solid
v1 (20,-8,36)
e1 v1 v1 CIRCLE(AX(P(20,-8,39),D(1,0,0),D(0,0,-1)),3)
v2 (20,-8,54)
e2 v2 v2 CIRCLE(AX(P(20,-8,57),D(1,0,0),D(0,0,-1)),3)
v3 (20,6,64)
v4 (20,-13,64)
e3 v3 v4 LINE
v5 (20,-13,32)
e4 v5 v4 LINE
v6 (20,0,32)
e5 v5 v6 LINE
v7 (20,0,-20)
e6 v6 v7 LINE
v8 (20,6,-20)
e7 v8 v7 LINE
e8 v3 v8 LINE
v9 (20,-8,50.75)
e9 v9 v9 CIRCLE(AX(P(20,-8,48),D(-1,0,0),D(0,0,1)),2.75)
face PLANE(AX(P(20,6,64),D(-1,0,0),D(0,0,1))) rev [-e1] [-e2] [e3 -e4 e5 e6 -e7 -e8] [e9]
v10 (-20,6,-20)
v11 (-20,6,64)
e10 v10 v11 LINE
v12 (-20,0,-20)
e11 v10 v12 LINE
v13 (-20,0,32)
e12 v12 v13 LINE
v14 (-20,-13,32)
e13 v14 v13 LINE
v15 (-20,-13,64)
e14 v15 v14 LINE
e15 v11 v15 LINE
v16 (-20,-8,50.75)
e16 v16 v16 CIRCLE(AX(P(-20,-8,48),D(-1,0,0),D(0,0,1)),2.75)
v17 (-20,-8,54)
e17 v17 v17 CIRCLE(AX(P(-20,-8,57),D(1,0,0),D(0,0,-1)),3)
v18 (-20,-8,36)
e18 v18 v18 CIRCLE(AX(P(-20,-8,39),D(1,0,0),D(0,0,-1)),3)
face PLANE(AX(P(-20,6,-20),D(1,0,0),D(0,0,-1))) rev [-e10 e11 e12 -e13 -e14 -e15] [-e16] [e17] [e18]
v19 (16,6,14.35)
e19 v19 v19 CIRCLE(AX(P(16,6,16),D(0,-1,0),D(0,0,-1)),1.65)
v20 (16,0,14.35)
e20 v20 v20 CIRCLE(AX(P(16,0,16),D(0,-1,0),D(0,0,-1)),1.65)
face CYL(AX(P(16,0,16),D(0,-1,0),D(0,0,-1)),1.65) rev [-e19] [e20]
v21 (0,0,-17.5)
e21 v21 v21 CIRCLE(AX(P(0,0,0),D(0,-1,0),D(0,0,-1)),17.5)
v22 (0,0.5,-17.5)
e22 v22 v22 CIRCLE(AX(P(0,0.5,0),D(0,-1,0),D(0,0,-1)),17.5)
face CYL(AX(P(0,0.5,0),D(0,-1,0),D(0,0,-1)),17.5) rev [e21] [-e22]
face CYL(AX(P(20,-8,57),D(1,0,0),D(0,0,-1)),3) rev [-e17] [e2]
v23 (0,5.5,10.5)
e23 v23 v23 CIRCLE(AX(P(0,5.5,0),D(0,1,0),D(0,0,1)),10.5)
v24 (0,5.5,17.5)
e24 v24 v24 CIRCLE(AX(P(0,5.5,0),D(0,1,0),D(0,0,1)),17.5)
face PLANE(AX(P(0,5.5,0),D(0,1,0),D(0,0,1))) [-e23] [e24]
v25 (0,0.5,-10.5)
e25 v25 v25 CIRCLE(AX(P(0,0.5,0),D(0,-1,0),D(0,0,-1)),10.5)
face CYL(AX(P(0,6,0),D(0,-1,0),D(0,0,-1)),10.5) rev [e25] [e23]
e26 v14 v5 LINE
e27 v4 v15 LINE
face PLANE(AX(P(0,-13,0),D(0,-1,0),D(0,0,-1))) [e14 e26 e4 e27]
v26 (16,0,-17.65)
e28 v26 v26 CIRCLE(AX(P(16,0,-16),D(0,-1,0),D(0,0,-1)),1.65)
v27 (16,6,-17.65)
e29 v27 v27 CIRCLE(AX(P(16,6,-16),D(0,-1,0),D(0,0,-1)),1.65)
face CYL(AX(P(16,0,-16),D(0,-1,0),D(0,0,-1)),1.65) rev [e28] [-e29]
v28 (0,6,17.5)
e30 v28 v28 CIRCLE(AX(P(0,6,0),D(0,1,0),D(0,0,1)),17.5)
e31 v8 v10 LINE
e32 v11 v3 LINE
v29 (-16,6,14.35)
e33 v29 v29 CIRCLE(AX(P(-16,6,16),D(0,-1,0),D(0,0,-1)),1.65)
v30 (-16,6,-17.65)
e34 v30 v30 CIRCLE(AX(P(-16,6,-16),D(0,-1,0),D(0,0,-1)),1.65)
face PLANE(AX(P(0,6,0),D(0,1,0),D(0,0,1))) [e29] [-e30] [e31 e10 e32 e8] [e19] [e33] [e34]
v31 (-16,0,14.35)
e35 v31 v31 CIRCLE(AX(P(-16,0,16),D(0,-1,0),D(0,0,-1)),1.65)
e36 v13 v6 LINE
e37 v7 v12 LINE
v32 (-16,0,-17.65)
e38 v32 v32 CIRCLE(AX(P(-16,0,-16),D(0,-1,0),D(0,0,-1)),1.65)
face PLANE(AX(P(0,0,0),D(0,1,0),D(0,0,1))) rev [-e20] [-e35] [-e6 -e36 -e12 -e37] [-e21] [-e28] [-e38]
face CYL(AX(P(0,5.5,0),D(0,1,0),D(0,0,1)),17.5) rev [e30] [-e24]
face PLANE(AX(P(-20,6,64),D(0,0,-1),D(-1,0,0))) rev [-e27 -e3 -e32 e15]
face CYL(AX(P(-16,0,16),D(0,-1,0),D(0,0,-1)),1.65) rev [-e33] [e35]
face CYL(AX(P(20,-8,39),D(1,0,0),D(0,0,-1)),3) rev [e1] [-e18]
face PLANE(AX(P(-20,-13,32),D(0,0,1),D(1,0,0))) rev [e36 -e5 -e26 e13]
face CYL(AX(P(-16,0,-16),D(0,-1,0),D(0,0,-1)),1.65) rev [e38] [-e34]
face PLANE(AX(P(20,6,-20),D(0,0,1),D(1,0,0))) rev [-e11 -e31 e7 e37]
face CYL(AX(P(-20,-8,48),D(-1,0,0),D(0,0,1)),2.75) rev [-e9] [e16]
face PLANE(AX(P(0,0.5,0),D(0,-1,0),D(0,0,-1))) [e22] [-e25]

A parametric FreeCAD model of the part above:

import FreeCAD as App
import Part
import Sketcher

V = App.Vector
Q = App.Units.Quantity


def add_polygon(sketch, points):
    """Adds a closed chain of lines whose ends are joined by coincident constraints."""
    first, n = sketch.GeometryCount, len(points)
    for a, b in zip(points, points[1:] + points[:1]):
        sketch.addGeometry(Part.LineSegment(App.Vector(*a, 0), App.Vector(*b, 0)), False)
    for i in range(n):
        sketch.addConstraint(Sketcher.Constraint("Coincident", first + i, 2, first + (i + 1) % n, 1))

doc = App.newDocument("Part")
body = doc.addObject("PartDesign::Body", "Body")

# Sketch on XZ plane
sketch1 = body.newObject("Sketcher::SketchObject", "Sketch")
sketch1.AttachmentSupport = (doc.getObject("XZ_Plane"), [""])
sketch1.MapMode = "FlatFace"
add_polygon(sketch1, [(-20, -20), (-20, 64), (20, 64), (20, -20)])  # lines 0-3
sketch1.addGeometry(Part.Circle(V(0, 0, 0), V(0, 0, 1), 10.5), False)  # 4
sketch1.addConstraint([
    Sketcher.Constraint("Vertical", 0),
    Sketcher.Constraint("Horizontal", 1),
    Sketcher.Constraint("Vertical", 2),
    Sketcher.Constraint("Horizontal", 3),
    Sketcher.Constraint("Coincident", 4, 3, -1, 1),
    Sketcher.Constraint("Diameter", 4, Q("21 mm")),
    Sketcher.Constraint("DistanceX", 1, 1, 1, 2, Q("40 mm")),
    Sketcher.Constraint("DistanceY", 0, 1, 0, 2, Q("84 mm")),
    Sketcher.Constraint("DistanceX", 0, 2, -1, 1, Q("20 mm")),
    Sketcher.Constraint("DistanceY", -1, 1, 0, 2, Q("64 mm")),
])
pad1 = body.newObject("PartDesign::Pad", "Pad")
pad1.Profile = sketch1
pad1.Length = 6
pad1.Reversed = True

# Sketch on XZ plane
sketch2 = body.newObject("Sketcher::SketchObject", "Sketch001")
sketch2.AttachmentSupport = (doc.getObject("XZ_Plane"), [""])
sketch2.MapMode = "FlatFace"
add_polygon(sketch2, [(-20, 64), (-20, 32), (20, 32), (20, 64)])  # lines 0-3
sketch2.addConstraint([
    Sketcher.Constraint("Vertical", 0),
    Sketcher.Constraint("Horizontal", 1),
    Sketcher.Constraint("Vertical", 2),
    Sketcher.Constraint("Horizontal", 3),
    Sketcher.Constraint("DistanceX", 1, 1, 1, 2, Q("40 mm")),
    Sketcher.Constraint("DistanceY", 0, 2, 0, 1, Q("32 mm")),
    Sketcher.Constraint("DistanceX", 0, 2, -1, 1, Q("20 mm")),
    Sketcher.Constraint("DistanceY", -1, 1, 0, 2, Q("32 mm")),
])
pad2 = body.newObject("PartDesign::Pad", "Pad001")
pad2.Profile = sketch2
pad2.Length = 13

# Sketch on YZ plane
sketch3 = body.newObject("Sketcher::SketchObject", "Sketch002")
sketch3.AttachmentSupport = (doc.getObject("YZ_Plane"), [""])
sketch3.MapMode = "FlatFace"
sketch3.AttachmentOffset = App.Placement(V(0, 0, 20), App.Rotation())
sketch3.addGeometry([
    Part.Circle(V(-8, 57, 0), V(0, 0, 1), 3),
    Part.Circle(V(-8, 39, 0), V(0, 0, 1), 3),
], False)
sketch3.addConstraint([
    Sketcher.Constraint("Equal", 0, 1),
    Sketcher.Constraint("Vertical", 0, 3, 1, 3),
    Sketcher.Constraint("Diameter", 0, Q("6 mm")),
    Sketcher.Constraint("DistanceX", 0, 3, -1, 1, Q("8 mm")),
    Sketcher.Constraint("DistanceY", -1, 1, 0, 3, Q("57 mm")),
    Sketcher.Constraint("DistanceY", -1, 1, 1, 3, Q("39 mm")),
])
doc.recompute()
hole = body.newObject("PartDesign::Hole", "Hole")
hole.Profile = sketch3
hole.ThreadType = "None"
hole.Diameter = 6
hole.DepthType = "ThroughAll"

# Sketch on YZ plane
sketch4 = body.newObject("Sketcher::SketchObject", "Sketch003")
sketch4.AttachmentSupport = (doc.getObject("YZ_Plane"), [""])
sketch4.MapMode = "FlatFace"
sketch4.AttachmentOffset = App.Placement(V(0, 0, -20), App.Rotation())
sketch4.addGeometry(Part.Circle(V(-8, 48, 0), V(0, 0, 1), 2.75), False)
sketch4.addConstraint([
    Sketcher.Constraint("Diameter", 0, Q("5.5 mm")),
    Sketcher.Constraint("DistanceX", 0, 3, -1, 1, Q("8 mm")),
    Sketcher.Constraint("DistanceY", -1, 1, 0, 3, Q("48 mm")),
])
doc.recompute()
hole2 = body.newObject("PartDesign::Hole", "Hole001")
hole2.Profile = sketch4
hole2.ThreadType = "None"
hole2.Diameter = 5.5
hole2.DepthType = "ThroughAll"
hole2.Reversed = True

# Sketch on XZ plane
sketch5 = body.newObject("Sketcher::SketchObject", "Sketch004")
sketch5.AttachmentSupport = (doc.getObject("XZ_Plane"), [""])
sketch5.MapMode = "FlatFace"
sketch5.addGeometry([
    Part.Circle(V(-16, -16, 0), V(0, 0, 1), 1.65),
    Part.Circle(V(16, -16, 0), V(0, 0, 1), 1.65),
    Part.Circle(V(16, 16, 0), V(0, 0, 1), 1.65),
    Part.Circle(V(-16, 16, 0), V(0, 0, 1), 1.65),
], False)
sketch5.addConstraint([
    Sketcher.Constraint("Equal", 0, 1),
    Sketcher.Constraint("Equal", 1, 2),
    Sketcher.Constraint("Equal", 2, 3),
    Sketcher.Constraint("Symmetric", 0, 3, 2, 3, -1, 1),
    Sketcher.Constraint("Symmetric", 1, 3, 3, 3, -1, 1),
    Sketcher.Constraint("Symmetric", 0, 3, 1, 3, -2),
    Sketcher.Constraint("Diameter", 0, Q("3.3 mm")),
    Sketcher.Constraint("DistanceX", 0, 3, -1, 1, Q("16 mm")),
    Sketcher.Constraint("DistanceY", 0, 3, -1, 1, Q("16 mm")),
])
doc.recompute()
hole3 = body.newObject("PartDesign::Hole", "Hole002")
hole3.Profile = sketch5
hole3.ThreadType = "None"
hole3.Diameter = 3.3
hole3.DepthType = "ThroughAll"

# Sketch on XZ plane
sketch6 = body.newObject("Sketcher::SketchObject", "Sketch005")
sketch6.AttachmentSupport = (doc.getObject("XZ_Plane"), [""])
sketch6.MapMode = "FlatFace"
sketch6.AttachmentOffset = App.Placement(V(0, 0, -6), App.Rotation())
sketch6.addGeometry(Part.Circle(V(0, 0, 0), V(0, 0, 1), 17.5), False)
sketch6.addConstraint([
    Sketcher.Constraint("Coincident", 0, 3, -1, 1),
    Sketcher.Constraint("Diameter", 0, Q("35 mm")),
])
pocket1 = body.newObject("PartDesign::Pocket", "Pocket")
pocket1.Profile = sketch6
pocket1.Length = 0.5
pocket1.Reversed = True

# Sketch on XZ plane
sketch7 = body.newObject("Sketcher::SketchObject", "Sketch006")
sketch7.AttachmentSupport = (doc.getObject("XZ_Plane"), [""])
sketch7.MapMode = "FlatFace"
sketch7.AttachmentOffset = App.Placement(V(0, 0, -0.5), App.Rotation())
sketch7.addGeometry(Part.Circle(V(0, 0, 0), V(0, 0, 1), 17.5), False)
sketch7.addConstraint([
    Sketcher.Constraint("Coincident", 0, 3, -1, 1),
    Sketcher.Constraint("Diameter", 0, Q("35 mm")),
])
pocket2 = body.newObject("PartDesign::Pocket", "Pocket001")
pocket2.Profile = sketch7
pocket2.Length = 0.5
pocket2.Reversed = True

doc.recompute()
